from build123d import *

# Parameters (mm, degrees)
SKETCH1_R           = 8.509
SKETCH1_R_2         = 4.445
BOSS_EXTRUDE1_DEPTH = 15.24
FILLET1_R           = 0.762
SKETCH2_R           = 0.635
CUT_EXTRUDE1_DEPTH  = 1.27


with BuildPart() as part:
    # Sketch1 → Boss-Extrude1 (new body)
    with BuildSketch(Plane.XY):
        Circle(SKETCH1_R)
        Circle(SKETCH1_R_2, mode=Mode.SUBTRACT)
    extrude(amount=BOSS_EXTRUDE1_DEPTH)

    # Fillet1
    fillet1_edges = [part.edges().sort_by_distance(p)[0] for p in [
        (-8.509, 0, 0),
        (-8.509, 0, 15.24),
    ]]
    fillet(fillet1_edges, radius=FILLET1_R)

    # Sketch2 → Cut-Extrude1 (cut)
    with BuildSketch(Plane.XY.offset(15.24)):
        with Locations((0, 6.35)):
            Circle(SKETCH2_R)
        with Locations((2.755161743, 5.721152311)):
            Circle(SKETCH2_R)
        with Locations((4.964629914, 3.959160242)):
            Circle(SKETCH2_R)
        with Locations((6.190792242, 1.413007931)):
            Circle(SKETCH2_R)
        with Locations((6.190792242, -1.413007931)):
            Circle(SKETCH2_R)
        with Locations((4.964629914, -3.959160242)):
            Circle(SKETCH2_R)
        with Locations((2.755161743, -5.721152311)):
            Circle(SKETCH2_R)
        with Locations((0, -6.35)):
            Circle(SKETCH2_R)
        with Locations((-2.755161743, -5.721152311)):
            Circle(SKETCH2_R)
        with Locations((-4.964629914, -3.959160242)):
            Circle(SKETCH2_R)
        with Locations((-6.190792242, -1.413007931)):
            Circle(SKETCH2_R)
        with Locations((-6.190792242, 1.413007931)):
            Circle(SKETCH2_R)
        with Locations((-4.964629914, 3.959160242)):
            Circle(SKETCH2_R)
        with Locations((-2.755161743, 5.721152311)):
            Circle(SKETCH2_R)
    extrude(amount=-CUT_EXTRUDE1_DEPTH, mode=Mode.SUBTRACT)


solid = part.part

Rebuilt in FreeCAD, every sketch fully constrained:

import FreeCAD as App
import Part
import Sketcher

V = App.Vector
Q = App.Units.Quantity


def edges_at(feature, points):
    """Names of the edges that pass closest to the given points."""
    edges = feature.Shape.Edges
    near = lambda p: min(range(len(edges)), key=lambda i: edges[i].distToShape(Part.Vertex(*p))[0])
    return sorted({f"Edge{near(p) + 1}" for p in points})

doc = App.newDocument("Part")
body = doc.addObject("PartDesign::Body", "Body")

# Sketch on XY plane
sketch1 = doc.addObject("Sketcher::SketchObject", "Sketch")
body.addObject(sketch1)
sketch1.AttachmentSupport = (doc.XY_Plane, [""])
sketch1.MapMode = "FlatFace"
sketch1.addGeometry([
    Part.Circle(V(0, 0, 0), V(0, 0, 1), 8.5),
    Part.Circle(V(0, 0, 0), V(0, 0, 1), 4.4),
], False)
sketch1.addConstraint([
    Sketcher.Constraint("Coincident", 0, 3, -1, 1),
    Sketcher.Constraint("Coincident", 1, 3, -1, 1),
    Sketcher.Constraint("Diameter", 0, Q("0.67 in")),
    Sketcher.Constraint("Diameter", 1, Q("0.35 in")),
])
pad1 = doc.addObject("PartDesign::Pad", "Pad")
body.addObject(pad1)
pad1.Profile = sketch1
pad1.Length = Q("0.6 in")
doc.recompute()

fillet = doc.addObject("PartDesign::Fillet", "Fillet")
body.addObject(fillet)
fillet.Base = (pad1, edges_at(pad1, [(-8.509, 0, 0), (-8.509, 0, 15.24)]))
fillet.Radius = Q("0.03 in")

# Sketch on XY plane
sketch2 = doc.addObject("Sketcher::SketchObject", "Sketch001")
body.addObject(sketch2)
sketch2.AttachmentSupport = (doc.XY_Plane, [""])
sketch2.MapMode = "FlatFace"
sketch2.AttachmentOffset = App.Placement(V(0, 0, 0.6 * 25.4), App.Rotation())
sketch2.addGeometry([
    Part.Circle(V(0, 6.3, 0), V(0, 0, 1), 0.6),  # 0
    Part.Circle(V(2.8, 5.7, 0), V(0, 0, 1), 0.6),  # 1
    Part.Circle(V(5, 4, 0), V(0, 0, 1), 0.6),  # 2
    Part.Circle(V(6.2, 1.4, 0), V(0, 0, 1), 0.6),  # 3
    Part.Circle(V(6.2, -1.4, 0), V(0, 0, 1), 0.6),  # 4
    Part.Circle(V(5, -4, 0), V(0, 0, 1), 0.6),  # 5
    Part.Circle(V(2.8, -5.7, 0), V(0, 0, 1), 0.6),  # 6
    Part.Circle(V(0, -6.3, 0), V(0, 0, 1), 0.6),  # 7
    Part.Circle(V(-2.8, -5.7, 0), V(0, 0, 1), 0.6),  # 8
    Part.Circle(V(-5, -4, 0), V(0, 0, 1), 0.6),  # 9
    Part.Circle(V(-6.2, -1.4, 0), V(0, 0, 1), 0.6),  # 10
    Part.Circle(V(-6.2, 1.4, 0), V(0, 0, 1), 0.6),  # 11
    Part.Circle(V(-5, 4, 0), V(0, 0, 1), 0.6),  # 12
    Part.Circle(V(-2.8, 5.7, 0), V(0, 0, 1), 0.6),  # 13
], False)
sketch2.addConstraint([
    Sketcher.Constraint("Equal", 0, 1),
    Sketcher.Constraint("Equal", 1, 2),
    Sketcher.Constraint("Equal", 2, 3),
    Sketcher.Constraint("Equal", 3, 4),
    Sketcher.Constraint("Equal", 4, 5),
    Sketcher.Constraint("Equal", 5, 6),
    Sketcher.Constraint("Equal", 6, 7),
    Sketcher.Constraint("Equal", 7, 8),
    Sketcher.Constraint("Equal", 8, 9),
    Sketcher.Constraint("Equal", 9, 10),
    Sketcher.Constraint("Equal", 10, 11),
    Sketcher.Constraint("Equal", 11, 12),
    Sketcher.Constraint("Equal", 12, 13),
    Sketcher.Constraint("Symmetric", 0, 3, 7, 3, -1, 1),
    Sketcher.Constraint("Symmetric", 1, 3, 8, 3, -1, 1),
    Sketcher.Constraint("Symmetric", 2, 3, 9, 3, -1, 1),
    Sketcher.Constraint("Symmetric", 3, 3, 10, 3, -1, 1),
    Sketcher.Constraint("Symmetric", 4, 3, 11, 3, -1, 1),
    Sketcher.Constraint("Symmetric", 5, 3, 12, 3, -1, 1),
    Sketcher.Constraint("Symmetric", 6, 3, 13, 3, -1, 1),
    Sketcher.Constraint("Symmetric", 6, 3, 8, 3, -2),
    Sketcher.Constraint("Symmetric", 5, 3, 9, 3, -2),
    Sketcher.Constraint("Symmetric", 4, 3, 10, 3, -2),
    Sketcher.Constraint("PointOnObject", 0, 3, -2),
    Sketcher.Constraint("Diameter", 0, Q("0.05 in")),
    Sketcher.Constraint("DistanceY", -1, 1, 0, 3, Q("0.25 in")),
    Sketcher.Constraint("DistanceX", -1, 1, 1, 3, 2.755162),
    Sketcher.Constraint("DistanceX", -1, 1, 2, 3, 4.96463),
    Sketcher.Constraint("DistanceY", -1, 1, 2, 3, 3.95916),
    Sketcher.Constraint("DistanceX", 1, 3, 3, 3, 3.43563),
    Sketcher.Constraint("DistanceY", 4, 3, 2, 3, 5.372168),
    Sketcher.Constraint("DistanceY", 4, 3, 1, 3, 7.13416),
])
pocket1 = doc.addObject("PartDesign::Pocket", "Pocket")
body.addObject(pocket1)
pocket1.Profile = sketch2
pocket1.Length = Q("0.05 in")

doc.recompute()
